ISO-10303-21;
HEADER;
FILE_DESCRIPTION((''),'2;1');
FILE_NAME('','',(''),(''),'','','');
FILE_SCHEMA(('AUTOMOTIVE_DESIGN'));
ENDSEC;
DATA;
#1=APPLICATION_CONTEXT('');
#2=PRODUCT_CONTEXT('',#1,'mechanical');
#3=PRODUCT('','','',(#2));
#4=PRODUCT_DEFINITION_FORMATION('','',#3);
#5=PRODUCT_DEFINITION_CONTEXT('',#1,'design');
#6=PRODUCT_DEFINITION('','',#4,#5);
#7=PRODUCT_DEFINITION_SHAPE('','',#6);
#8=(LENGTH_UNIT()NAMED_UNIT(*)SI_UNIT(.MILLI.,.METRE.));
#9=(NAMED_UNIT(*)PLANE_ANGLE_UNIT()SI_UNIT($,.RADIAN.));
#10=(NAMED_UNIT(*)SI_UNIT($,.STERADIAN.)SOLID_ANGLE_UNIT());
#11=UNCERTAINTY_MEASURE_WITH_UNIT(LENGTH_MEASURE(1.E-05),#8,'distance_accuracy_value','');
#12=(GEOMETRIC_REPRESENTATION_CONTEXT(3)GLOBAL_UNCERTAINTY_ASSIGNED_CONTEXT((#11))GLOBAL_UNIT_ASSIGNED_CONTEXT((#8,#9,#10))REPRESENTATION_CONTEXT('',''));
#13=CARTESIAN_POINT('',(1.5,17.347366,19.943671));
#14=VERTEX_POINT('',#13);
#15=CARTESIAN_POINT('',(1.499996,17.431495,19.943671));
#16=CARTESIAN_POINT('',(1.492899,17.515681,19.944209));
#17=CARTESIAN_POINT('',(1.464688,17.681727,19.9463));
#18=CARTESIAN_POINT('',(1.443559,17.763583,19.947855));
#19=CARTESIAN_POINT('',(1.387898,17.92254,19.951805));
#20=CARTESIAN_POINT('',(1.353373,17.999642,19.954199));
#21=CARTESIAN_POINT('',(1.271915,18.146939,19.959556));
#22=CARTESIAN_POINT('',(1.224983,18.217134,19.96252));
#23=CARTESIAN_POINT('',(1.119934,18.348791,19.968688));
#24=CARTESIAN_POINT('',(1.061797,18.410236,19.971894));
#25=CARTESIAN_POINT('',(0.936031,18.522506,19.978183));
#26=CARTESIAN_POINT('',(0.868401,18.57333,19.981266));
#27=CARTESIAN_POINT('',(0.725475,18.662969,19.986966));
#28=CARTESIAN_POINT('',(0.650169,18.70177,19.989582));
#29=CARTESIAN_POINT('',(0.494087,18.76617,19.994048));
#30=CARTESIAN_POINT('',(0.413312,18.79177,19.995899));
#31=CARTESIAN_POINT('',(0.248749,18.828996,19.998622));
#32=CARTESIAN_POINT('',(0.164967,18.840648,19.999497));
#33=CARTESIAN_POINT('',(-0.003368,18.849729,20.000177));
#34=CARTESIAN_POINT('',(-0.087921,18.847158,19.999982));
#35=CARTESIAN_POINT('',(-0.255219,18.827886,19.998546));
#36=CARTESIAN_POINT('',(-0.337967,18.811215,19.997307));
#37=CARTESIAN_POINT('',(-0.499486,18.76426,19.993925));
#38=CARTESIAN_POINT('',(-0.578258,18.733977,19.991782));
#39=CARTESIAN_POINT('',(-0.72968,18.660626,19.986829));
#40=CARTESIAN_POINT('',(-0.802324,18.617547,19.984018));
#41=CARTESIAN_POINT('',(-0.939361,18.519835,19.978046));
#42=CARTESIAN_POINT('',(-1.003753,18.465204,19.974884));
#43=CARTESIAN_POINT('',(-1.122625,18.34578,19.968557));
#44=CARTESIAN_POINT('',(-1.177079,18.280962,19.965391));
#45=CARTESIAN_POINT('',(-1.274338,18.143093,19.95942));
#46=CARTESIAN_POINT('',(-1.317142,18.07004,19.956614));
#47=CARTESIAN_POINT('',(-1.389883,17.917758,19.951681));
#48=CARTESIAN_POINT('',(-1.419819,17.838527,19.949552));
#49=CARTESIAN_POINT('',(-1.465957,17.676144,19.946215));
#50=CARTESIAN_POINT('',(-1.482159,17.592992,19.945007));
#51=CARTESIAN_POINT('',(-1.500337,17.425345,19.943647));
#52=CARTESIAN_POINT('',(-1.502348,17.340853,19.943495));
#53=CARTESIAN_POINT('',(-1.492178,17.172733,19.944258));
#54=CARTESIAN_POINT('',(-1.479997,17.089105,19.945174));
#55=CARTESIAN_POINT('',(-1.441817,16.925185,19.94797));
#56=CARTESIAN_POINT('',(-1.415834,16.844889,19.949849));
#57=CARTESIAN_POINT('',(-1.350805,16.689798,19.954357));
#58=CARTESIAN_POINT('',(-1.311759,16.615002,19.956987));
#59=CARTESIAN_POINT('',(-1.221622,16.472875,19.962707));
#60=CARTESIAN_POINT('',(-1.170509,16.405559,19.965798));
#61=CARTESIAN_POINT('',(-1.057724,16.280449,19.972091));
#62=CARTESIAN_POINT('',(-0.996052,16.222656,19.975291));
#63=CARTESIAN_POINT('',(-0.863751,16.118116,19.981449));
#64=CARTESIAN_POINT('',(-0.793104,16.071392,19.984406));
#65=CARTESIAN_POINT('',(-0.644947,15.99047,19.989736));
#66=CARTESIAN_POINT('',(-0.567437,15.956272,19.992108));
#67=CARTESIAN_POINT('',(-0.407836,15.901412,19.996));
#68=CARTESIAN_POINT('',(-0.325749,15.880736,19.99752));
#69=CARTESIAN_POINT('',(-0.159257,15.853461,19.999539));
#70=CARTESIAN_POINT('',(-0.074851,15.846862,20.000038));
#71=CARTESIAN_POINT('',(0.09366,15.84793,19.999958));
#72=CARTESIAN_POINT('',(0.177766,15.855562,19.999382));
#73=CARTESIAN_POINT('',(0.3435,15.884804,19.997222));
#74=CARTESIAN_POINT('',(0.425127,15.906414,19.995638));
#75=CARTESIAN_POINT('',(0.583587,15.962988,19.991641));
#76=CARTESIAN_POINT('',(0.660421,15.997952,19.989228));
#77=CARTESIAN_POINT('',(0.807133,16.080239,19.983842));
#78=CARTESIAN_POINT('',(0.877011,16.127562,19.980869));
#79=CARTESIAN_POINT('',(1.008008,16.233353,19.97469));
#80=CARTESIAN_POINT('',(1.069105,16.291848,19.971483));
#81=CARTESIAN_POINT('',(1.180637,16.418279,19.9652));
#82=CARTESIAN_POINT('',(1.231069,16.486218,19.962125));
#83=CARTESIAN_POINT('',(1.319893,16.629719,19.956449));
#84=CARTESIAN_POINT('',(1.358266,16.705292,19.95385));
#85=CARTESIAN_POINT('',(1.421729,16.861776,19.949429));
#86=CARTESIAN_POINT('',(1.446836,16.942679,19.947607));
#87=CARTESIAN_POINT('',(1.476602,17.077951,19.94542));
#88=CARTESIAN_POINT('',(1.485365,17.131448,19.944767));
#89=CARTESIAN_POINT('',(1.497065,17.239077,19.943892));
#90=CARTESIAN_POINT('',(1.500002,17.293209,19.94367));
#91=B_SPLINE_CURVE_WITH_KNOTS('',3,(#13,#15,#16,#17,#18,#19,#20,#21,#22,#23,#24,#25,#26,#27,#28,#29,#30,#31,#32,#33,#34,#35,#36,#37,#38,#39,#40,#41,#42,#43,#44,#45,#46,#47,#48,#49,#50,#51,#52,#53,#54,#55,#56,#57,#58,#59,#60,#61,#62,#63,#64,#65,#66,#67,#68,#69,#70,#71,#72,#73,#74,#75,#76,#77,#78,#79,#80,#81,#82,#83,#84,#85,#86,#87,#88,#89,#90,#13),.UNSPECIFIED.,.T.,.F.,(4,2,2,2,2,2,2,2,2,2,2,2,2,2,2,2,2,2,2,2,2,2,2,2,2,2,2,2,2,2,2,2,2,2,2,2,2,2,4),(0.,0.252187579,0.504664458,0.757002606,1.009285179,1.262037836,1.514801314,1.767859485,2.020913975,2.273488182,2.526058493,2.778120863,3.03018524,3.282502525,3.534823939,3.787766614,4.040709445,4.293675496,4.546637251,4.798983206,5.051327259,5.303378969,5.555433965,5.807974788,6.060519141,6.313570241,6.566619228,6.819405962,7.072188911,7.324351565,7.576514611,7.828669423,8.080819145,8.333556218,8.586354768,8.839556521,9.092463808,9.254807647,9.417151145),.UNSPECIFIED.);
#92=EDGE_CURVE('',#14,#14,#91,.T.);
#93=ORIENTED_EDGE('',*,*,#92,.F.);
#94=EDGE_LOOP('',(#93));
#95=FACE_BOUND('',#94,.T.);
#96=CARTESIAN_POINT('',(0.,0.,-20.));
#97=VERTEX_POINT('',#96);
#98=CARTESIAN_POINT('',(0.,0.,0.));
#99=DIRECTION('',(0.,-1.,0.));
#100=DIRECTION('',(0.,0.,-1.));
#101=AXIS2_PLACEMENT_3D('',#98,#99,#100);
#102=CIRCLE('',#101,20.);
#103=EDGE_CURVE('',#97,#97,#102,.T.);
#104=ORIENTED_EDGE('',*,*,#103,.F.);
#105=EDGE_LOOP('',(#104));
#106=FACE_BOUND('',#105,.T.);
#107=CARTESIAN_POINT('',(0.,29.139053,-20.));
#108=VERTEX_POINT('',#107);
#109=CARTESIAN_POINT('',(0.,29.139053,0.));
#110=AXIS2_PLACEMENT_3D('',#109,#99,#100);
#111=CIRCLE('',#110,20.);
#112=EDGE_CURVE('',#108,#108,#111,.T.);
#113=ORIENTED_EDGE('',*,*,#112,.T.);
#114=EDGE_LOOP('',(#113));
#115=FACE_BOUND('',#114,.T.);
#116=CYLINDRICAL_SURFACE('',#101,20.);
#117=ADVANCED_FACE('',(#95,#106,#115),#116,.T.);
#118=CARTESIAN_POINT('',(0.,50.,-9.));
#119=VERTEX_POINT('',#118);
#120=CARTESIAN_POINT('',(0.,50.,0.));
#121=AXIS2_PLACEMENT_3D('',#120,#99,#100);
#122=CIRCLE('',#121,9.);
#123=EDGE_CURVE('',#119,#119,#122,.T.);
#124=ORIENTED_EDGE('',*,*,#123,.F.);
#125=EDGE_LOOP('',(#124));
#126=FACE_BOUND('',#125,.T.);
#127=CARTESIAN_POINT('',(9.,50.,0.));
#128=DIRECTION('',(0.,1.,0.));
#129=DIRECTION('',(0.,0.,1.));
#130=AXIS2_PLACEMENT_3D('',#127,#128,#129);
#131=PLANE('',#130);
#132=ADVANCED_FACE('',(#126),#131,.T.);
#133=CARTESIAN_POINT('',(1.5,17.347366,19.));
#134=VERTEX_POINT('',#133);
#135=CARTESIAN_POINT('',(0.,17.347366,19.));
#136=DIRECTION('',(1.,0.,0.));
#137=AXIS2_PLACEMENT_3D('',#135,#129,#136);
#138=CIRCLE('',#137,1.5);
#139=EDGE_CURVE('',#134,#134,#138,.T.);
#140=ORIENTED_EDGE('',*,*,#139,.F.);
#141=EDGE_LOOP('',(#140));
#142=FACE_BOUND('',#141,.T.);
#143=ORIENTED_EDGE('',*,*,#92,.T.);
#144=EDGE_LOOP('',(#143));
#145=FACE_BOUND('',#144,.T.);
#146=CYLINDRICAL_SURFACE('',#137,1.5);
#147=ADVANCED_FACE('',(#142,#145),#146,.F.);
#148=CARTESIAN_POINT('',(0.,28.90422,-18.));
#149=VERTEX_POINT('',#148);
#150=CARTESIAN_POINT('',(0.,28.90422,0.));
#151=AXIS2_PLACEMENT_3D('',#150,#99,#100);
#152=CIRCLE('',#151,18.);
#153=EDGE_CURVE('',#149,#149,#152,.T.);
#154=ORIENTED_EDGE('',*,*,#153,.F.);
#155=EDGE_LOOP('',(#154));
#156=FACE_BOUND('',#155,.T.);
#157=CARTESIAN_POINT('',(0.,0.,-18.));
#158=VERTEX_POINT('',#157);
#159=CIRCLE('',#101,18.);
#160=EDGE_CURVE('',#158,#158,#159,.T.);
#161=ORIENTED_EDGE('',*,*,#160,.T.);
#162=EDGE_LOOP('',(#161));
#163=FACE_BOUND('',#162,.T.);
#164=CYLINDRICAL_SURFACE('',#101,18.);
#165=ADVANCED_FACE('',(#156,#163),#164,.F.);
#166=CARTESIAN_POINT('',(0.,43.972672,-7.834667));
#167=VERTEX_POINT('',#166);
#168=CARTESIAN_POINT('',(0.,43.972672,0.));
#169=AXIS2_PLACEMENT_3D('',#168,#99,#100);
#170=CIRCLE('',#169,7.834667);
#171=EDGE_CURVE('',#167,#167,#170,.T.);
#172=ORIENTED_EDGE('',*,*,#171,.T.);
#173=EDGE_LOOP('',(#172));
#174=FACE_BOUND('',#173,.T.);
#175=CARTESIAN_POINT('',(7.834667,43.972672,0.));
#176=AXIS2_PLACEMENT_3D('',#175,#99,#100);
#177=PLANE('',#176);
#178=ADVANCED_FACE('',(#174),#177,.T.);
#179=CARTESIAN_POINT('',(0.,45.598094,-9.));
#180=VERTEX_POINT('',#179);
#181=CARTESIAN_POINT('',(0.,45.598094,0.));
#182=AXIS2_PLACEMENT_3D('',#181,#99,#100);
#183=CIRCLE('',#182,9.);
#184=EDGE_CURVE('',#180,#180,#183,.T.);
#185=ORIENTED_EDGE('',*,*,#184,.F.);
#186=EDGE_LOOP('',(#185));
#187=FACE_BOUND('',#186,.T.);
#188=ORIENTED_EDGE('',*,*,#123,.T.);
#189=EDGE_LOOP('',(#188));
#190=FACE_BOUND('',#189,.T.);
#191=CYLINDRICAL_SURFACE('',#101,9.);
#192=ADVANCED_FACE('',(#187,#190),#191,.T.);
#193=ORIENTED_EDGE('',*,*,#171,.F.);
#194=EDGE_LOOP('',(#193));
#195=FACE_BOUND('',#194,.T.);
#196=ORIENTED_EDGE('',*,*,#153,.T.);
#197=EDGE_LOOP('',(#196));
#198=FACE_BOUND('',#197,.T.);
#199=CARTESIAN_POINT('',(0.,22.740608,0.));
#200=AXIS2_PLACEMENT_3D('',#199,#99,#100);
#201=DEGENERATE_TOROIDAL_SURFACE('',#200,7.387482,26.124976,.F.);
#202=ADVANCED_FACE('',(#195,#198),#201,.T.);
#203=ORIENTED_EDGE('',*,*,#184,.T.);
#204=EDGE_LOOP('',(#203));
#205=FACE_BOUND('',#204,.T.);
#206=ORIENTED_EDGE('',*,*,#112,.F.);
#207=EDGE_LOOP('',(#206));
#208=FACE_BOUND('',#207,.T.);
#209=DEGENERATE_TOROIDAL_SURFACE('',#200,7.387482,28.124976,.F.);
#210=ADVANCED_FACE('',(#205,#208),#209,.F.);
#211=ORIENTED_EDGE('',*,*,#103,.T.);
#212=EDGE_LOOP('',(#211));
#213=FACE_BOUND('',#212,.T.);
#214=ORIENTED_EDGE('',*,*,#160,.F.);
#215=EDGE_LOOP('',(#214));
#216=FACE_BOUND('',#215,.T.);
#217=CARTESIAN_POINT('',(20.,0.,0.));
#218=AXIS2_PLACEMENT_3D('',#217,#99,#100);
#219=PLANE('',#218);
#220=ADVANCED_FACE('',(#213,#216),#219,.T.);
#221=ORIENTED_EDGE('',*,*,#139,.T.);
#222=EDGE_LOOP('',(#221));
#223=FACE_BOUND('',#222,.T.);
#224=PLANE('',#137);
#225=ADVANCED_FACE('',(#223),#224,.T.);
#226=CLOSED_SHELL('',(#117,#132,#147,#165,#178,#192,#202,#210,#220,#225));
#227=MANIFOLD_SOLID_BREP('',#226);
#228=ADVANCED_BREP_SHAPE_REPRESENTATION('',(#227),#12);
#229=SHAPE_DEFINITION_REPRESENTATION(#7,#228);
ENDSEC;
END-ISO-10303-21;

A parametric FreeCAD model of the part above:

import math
import FreeCAD as App
import Part
import Sketcher

doc = App.newDocument("Part")
body = doc.addObject("PartDesign::Body", "Body")

# Sketch on XY plane
sketch1 = body.newObject("Sketcher::SketchObject", "Sketch")
sketch1.AttachmentSupport = (doc.getObject("XY_Plane"), [""])
sketch1.MapMode = "FlatFace"
sketch1.addGeometry([
    Part.LineSegment(App.Vector(20, 0, 0), App.Vector(20, 29.1, 0)),  # 0
    Part.ArcOfCircle(Part.Circle(App.Vector(-7.4, 22.7, 0), App.Vector(0, 0, 1), 28.1), math.radians(13), math.radians(54)),  # 1
    Part.LineSegment(App.Vector(9, 45.6, 0), App.Vector(9, 50, 0)),  # 2
    Part.LineSegment(App.Vector(9, 50, 0), App.Vector(0, 50, 0)),  # 3
    Part.LineSegment(App.Vector(0, 50, 0), App.Vector(0, 44, 0)),  # 4
    Part.LineSegment(App.Vector(0, 44, 0), App.Vector(7.8, 44, 0)),  # 5
    Part.ArcOfCircle(Part.Circle(App.Vector(-7.4, 22.7, 0), App.Vector(0, 0, 1), 26.1), math.radians(14), math.radians(54)),  # 6
    Part.LineSegment(App.Vector(18, 28.9, 0), App.Vector(18, 0, 0)),  # 7
    Part.LineSegment(App.Vector(18, 0, 0), App.Vector(20, 0, 0)),  # 8
], False)
sketch1.addConstraint([
    Sketcher.Constraint("Coincident", 0, 2, 1, 1),
    Sketcher.Constraint("Coincident", 1, 2, 2, 1),
    Sketcher.Constraint("Coincident", 2, 2, 3, 1),
    Sketcher.Constraint("Coincident", 3, 2, 4, 1),
    Sketcher.Constraint("Coincident", 4, 2, 5, 1),
    Sketcher.Constraint("Coincident", 5, 2, 6, 2),
    Sketcher.Constraint("Coincident", 6, 1, 7, 1),
    Sketcher.Constraint("Coincident", 7, 2, 8, 1),
    Sketcher.Constraint("Coincident", 8, 2, 0, 1),
    Sketcher.Constraint("Vertical", 0),
    Sketcher.Constraint("Vertical", 2),
    Sketcher.Constraint("Horizontal", 3),
    Sketcher.Constraint("Vertical", 4),
    Sketcher.Constraint("Horizontal", 5),
    Sketcher.Constraint("Vertical", 7),
    Sketcher.Constraint("Horizontal", 8),
    Sketcher.Constraint("Coincident", 6, 3, 1, 3),
    Sketcher.Constraint("PointOnObject", 3, 2, -2),
    Sketcher.Constraint("PointOnObject", 7, 2, -1),
    Sketcher.Constraint("DistanceX", 3, 2, 3, 1, 9.0),
    Sketcher.Constraint("DistanceX", 8, 1, 8, 2, 2.0),
    Sketcher.Constraint("DistanceX", -1, 1, 0, 2, 20.0),
    Sketcher.Constraint("DistanceY", -1, 1, 2, 2, 50.0),
    Sketcher.Constraint("Radius", 1, 28.124976),
    Sketcher.Constraint("Radius", 6, 26.124976),
    Sketcher.Constraint("DistanceY", 4, 2, 4, 1, 6.027328),
    Sketcher.Constraint("DistanceY", 7, 2, 7, 1, 28.90422),
    Sketcher.Constraint("DistanceX", 5, 1, 5, 2, 7.834667),
])
revolution = body.newObject("PartDesign::Revolution", "Revolution")
revolution.Profile = sketch1
revolution.ReferenceAxis = (sketch1, ["V_Axis"])
revolution.Angle = 360

# Sketch on XY plane
sketch2 = body.newObject("Sketcher::SketchObject", "Sketch001")
sketch2.AttachmentSupport = (doc.getObject("XY_Plane"), [""])
sketch2.MapMode = "FlatFace"
sketch2.AttachmentOffset = App.Placement(App.Vector(0, 0, 20), App.Rotation())
sketch2.addGeometry(Part.Circle(App.Vector(0, 17.3, 0), App.Vector(0, 0, 1), 1.5), False)
sketch2.addConstraint([
    Sketcher.Constraint("PointOnObject", 0, 3, -2),
    Sketcher.Constraint("Diameter", 0, 3.0),
    Sketcher.Constraint("DistanceY", -1, 1, 0, 3, 17.347366),
])
pocket1 = body.newObject("PartDesign::Pocket", "Pocket")
pocket1.Profile = sketch2
pocket1.Length = 1

doc.recompute()
